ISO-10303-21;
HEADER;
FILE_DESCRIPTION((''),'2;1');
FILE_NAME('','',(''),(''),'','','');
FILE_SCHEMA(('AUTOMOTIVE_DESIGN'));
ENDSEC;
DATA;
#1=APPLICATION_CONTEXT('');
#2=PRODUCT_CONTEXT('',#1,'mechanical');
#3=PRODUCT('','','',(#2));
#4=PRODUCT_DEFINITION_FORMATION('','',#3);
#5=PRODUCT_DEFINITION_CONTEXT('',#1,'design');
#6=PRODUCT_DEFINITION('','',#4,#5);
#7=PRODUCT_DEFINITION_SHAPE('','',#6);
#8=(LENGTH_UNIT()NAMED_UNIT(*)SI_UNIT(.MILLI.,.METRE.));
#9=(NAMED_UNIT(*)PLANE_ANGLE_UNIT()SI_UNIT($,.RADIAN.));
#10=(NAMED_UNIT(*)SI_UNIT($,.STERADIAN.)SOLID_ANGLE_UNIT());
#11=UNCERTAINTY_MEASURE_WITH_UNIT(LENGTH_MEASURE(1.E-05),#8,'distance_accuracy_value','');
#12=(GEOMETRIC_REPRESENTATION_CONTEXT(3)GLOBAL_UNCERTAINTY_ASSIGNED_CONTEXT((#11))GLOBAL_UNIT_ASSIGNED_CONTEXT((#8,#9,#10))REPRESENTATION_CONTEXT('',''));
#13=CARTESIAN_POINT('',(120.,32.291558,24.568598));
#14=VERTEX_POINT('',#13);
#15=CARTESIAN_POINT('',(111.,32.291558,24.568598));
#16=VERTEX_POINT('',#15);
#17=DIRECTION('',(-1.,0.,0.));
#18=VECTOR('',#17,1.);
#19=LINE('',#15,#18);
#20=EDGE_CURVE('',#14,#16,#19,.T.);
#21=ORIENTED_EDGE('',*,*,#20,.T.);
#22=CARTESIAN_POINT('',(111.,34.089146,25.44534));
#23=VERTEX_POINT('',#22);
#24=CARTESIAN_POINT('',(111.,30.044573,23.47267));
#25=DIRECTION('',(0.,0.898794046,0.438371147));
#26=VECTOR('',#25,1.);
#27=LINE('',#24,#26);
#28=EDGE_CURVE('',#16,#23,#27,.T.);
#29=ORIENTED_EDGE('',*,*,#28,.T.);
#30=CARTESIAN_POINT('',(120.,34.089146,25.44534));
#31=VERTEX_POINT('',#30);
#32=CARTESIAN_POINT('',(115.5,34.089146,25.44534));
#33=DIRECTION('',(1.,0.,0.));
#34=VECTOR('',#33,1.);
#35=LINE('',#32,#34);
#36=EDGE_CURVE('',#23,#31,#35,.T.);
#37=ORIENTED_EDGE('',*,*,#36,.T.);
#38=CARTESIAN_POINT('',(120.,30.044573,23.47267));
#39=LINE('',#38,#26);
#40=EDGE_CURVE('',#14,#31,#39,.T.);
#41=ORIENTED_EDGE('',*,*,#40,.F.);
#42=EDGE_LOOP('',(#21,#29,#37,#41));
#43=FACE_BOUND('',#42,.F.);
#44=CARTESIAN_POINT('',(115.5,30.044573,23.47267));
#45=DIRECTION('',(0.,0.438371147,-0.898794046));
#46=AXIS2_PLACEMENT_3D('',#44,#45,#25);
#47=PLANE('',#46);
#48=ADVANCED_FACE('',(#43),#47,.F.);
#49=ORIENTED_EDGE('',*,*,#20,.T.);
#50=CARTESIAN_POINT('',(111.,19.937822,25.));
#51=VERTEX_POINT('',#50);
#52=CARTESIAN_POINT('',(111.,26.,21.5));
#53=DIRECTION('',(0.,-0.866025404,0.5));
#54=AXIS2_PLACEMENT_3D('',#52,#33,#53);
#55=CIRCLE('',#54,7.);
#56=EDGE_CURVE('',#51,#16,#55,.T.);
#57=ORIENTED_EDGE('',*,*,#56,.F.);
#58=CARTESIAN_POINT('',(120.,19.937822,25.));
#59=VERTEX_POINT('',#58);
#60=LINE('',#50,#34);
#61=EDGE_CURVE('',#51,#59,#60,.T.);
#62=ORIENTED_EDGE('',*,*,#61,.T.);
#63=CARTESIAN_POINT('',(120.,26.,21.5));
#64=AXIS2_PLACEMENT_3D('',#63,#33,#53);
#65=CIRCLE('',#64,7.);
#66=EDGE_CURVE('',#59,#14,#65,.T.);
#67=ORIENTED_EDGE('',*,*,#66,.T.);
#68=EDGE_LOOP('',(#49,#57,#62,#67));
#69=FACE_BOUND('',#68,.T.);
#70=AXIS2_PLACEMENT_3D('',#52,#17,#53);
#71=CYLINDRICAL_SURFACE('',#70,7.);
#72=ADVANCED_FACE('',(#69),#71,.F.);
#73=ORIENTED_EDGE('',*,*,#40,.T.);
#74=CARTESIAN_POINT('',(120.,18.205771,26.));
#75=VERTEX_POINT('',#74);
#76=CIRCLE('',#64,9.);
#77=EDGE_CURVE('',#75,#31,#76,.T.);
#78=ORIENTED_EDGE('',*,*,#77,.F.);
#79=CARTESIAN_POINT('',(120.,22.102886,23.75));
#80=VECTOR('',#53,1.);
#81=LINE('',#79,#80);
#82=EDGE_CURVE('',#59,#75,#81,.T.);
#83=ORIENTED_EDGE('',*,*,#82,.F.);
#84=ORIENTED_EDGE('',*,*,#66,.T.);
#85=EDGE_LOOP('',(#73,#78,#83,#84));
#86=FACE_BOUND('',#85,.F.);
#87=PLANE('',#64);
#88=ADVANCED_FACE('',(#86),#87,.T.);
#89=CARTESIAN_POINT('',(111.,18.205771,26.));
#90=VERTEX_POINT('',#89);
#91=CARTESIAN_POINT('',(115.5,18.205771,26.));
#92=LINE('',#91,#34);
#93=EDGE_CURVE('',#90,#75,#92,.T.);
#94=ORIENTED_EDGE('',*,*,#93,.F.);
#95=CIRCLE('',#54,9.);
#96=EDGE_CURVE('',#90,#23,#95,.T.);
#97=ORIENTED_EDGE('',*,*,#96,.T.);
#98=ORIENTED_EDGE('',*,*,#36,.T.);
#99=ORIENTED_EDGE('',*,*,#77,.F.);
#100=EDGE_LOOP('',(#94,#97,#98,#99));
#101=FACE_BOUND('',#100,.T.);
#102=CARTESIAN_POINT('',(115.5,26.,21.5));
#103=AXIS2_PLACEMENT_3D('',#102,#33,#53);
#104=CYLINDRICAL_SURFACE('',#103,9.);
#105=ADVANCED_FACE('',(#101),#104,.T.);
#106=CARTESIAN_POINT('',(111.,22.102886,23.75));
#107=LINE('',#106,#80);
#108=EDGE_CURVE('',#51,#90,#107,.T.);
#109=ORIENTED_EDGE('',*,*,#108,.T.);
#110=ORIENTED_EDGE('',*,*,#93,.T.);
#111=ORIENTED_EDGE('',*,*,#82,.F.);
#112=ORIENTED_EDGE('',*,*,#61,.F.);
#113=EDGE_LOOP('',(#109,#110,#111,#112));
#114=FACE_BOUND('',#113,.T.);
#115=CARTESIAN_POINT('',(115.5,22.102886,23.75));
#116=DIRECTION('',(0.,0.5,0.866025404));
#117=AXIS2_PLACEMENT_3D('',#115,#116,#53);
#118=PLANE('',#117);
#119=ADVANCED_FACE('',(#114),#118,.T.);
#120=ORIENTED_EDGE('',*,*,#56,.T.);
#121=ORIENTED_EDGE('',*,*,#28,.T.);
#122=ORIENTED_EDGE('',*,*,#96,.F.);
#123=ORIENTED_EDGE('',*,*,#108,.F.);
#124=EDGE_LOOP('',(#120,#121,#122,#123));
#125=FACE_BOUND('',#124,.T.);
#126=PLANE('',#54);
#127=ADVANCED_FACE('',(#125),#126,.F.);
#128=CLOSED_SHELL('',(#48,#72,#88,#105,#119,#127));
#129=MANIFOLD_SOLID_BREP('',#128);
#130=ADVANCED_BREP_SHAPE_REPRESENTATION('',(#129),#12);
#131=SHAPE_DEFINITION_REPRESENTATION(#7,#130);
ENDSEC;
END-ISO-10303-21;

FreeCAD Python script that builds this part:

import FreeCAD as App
import Part
import Sketcher

V = App.Vector

doc = App.newDocument("Part")
body = doc.addObject("PartDesign::Body", "Body")

sketch1 = doc.addObject("Sketcher::SketchObject", "Sketch")
body.addObject(sketch1)
sketch1.AttachmentSupport = (doc.XY_Plane, [""])
sketch1.MapMode = "FlatFace"
sketch1.addGeometry(Part.Circle(V(0, 0, 0), V(0, 0, 1), 7), False)
sketch1.addConstraint([
    Sketcher.Constraint("Coincident", 0, 3, -1, 1),
    Sketcher.Constraint("Diameter", 0, 14.0),
])
pad1 = doc.addObject("PartDesign::Pad", "Pad")
body.addObject(pad1)
pad1.Profile = sketch1
pad1.Length = 9
body2 = doc.addObject("PartDesign::Body", "Body001")

sketch2 = doc.addObject("Sketcher::SketchObject", "Sketch001")
body2.addObject(sketch2)
sketch2.AttachmentSupport = (doc.getObject("XZ_Plane001"), [""])
sketch2.MapMode = "FlatFace"
sketch2.addGeometry([
    Part.LineSegment(V(0, 9, 0), V(0, 0, 0)),
    Part.LineSegment(V(0, 0, 0), V(9, 0, 0)),
    Part.LineSegment(V(9, 0, 0), V(9, 9, 0)),
    Part.LineSegment(V(9, 9, 0), V(0, 9, 0)),
], False)
sketch2.addConstraint([
    Sketcher.Constraint("Coincident", 0, 2, 1, 1),
    Sketcher.Constraint("Coincident", 1, 2, 2, 1),
    Sketcher.Constraint("Coincident", 2, 2, 3, 1),
    Sketcher.Constraint("Coincident", 3, 2, 0, 1),
    Sketcher.Constraint("Vertical", 0),
    Sketcher.Constraint("Horizontal", 1),
    Sketcher.Constraint("Vertical", 2),
    Sketcher.Constraint("Horizontal", 3),
    Sketcher.Constraint("Coincident", 0, 2, -1, 1),
    Sketcher.Constraint("Equal", 3, 0),
    Sketcher.Constraint("DistanceX", 1, 1, 1, 2, 9.0),
])
revolution = doc.addObject("PartDesign::Revolution", "Revolution")
body2.addObject(revolution)
revolution.Profile = sketch2
revolution.ReferenceAxis = (sketch2, ["V_Axis"])
revolution.Angle = 236
doc.recompute()

boolean = doc.addObject("PartDesign::Boolean", "Boolean")
body2.addObject(boolean)
boolean.Type = "Cut"
boolean.addObjects([body])
body3 = doc.addObject("PartDesign::Body", "Body002")
doc.recompute()

body2.Placement = App.Placement(V(0, 0, 0), App.Rotation(V(1, 0, 0), 270))
boolean2 = doc.addObject("PartDesign::Boolean", "Boolean001")
body3.addObject(boolean2)
boolean2.Type = "Fuse"
boolean2.addObjects([body2])
body4 = doc.addObject("PartDesign::Body", "Body003")
doc.recompute()

body3.Placement = App.Placement(V(0, 0, 0), App.Rotation(V(0, 1, 0), 330))
boolean3 = doc.addObject("PartDesign::Boolean", "Boolean002")
body4.addObject(boolean3)
boolean3.Type = "Fuse"
boolean3.addObjects([body3])
body5 = doc.addObject("PartDesign::Body", "Body004")
doc.recompute()

body4.Placement = App.Placement(V(111, 26, 21.5), App.Rotation(V(0, 0, 1), 270))
boolean4 = doc.addObject("PartDesign::Boolean", "Boolean003")
body5.addObject(boolean4)
boolean4.Type = "Fuse"
boolean4.addObjects([body4])

doc.recompute()
